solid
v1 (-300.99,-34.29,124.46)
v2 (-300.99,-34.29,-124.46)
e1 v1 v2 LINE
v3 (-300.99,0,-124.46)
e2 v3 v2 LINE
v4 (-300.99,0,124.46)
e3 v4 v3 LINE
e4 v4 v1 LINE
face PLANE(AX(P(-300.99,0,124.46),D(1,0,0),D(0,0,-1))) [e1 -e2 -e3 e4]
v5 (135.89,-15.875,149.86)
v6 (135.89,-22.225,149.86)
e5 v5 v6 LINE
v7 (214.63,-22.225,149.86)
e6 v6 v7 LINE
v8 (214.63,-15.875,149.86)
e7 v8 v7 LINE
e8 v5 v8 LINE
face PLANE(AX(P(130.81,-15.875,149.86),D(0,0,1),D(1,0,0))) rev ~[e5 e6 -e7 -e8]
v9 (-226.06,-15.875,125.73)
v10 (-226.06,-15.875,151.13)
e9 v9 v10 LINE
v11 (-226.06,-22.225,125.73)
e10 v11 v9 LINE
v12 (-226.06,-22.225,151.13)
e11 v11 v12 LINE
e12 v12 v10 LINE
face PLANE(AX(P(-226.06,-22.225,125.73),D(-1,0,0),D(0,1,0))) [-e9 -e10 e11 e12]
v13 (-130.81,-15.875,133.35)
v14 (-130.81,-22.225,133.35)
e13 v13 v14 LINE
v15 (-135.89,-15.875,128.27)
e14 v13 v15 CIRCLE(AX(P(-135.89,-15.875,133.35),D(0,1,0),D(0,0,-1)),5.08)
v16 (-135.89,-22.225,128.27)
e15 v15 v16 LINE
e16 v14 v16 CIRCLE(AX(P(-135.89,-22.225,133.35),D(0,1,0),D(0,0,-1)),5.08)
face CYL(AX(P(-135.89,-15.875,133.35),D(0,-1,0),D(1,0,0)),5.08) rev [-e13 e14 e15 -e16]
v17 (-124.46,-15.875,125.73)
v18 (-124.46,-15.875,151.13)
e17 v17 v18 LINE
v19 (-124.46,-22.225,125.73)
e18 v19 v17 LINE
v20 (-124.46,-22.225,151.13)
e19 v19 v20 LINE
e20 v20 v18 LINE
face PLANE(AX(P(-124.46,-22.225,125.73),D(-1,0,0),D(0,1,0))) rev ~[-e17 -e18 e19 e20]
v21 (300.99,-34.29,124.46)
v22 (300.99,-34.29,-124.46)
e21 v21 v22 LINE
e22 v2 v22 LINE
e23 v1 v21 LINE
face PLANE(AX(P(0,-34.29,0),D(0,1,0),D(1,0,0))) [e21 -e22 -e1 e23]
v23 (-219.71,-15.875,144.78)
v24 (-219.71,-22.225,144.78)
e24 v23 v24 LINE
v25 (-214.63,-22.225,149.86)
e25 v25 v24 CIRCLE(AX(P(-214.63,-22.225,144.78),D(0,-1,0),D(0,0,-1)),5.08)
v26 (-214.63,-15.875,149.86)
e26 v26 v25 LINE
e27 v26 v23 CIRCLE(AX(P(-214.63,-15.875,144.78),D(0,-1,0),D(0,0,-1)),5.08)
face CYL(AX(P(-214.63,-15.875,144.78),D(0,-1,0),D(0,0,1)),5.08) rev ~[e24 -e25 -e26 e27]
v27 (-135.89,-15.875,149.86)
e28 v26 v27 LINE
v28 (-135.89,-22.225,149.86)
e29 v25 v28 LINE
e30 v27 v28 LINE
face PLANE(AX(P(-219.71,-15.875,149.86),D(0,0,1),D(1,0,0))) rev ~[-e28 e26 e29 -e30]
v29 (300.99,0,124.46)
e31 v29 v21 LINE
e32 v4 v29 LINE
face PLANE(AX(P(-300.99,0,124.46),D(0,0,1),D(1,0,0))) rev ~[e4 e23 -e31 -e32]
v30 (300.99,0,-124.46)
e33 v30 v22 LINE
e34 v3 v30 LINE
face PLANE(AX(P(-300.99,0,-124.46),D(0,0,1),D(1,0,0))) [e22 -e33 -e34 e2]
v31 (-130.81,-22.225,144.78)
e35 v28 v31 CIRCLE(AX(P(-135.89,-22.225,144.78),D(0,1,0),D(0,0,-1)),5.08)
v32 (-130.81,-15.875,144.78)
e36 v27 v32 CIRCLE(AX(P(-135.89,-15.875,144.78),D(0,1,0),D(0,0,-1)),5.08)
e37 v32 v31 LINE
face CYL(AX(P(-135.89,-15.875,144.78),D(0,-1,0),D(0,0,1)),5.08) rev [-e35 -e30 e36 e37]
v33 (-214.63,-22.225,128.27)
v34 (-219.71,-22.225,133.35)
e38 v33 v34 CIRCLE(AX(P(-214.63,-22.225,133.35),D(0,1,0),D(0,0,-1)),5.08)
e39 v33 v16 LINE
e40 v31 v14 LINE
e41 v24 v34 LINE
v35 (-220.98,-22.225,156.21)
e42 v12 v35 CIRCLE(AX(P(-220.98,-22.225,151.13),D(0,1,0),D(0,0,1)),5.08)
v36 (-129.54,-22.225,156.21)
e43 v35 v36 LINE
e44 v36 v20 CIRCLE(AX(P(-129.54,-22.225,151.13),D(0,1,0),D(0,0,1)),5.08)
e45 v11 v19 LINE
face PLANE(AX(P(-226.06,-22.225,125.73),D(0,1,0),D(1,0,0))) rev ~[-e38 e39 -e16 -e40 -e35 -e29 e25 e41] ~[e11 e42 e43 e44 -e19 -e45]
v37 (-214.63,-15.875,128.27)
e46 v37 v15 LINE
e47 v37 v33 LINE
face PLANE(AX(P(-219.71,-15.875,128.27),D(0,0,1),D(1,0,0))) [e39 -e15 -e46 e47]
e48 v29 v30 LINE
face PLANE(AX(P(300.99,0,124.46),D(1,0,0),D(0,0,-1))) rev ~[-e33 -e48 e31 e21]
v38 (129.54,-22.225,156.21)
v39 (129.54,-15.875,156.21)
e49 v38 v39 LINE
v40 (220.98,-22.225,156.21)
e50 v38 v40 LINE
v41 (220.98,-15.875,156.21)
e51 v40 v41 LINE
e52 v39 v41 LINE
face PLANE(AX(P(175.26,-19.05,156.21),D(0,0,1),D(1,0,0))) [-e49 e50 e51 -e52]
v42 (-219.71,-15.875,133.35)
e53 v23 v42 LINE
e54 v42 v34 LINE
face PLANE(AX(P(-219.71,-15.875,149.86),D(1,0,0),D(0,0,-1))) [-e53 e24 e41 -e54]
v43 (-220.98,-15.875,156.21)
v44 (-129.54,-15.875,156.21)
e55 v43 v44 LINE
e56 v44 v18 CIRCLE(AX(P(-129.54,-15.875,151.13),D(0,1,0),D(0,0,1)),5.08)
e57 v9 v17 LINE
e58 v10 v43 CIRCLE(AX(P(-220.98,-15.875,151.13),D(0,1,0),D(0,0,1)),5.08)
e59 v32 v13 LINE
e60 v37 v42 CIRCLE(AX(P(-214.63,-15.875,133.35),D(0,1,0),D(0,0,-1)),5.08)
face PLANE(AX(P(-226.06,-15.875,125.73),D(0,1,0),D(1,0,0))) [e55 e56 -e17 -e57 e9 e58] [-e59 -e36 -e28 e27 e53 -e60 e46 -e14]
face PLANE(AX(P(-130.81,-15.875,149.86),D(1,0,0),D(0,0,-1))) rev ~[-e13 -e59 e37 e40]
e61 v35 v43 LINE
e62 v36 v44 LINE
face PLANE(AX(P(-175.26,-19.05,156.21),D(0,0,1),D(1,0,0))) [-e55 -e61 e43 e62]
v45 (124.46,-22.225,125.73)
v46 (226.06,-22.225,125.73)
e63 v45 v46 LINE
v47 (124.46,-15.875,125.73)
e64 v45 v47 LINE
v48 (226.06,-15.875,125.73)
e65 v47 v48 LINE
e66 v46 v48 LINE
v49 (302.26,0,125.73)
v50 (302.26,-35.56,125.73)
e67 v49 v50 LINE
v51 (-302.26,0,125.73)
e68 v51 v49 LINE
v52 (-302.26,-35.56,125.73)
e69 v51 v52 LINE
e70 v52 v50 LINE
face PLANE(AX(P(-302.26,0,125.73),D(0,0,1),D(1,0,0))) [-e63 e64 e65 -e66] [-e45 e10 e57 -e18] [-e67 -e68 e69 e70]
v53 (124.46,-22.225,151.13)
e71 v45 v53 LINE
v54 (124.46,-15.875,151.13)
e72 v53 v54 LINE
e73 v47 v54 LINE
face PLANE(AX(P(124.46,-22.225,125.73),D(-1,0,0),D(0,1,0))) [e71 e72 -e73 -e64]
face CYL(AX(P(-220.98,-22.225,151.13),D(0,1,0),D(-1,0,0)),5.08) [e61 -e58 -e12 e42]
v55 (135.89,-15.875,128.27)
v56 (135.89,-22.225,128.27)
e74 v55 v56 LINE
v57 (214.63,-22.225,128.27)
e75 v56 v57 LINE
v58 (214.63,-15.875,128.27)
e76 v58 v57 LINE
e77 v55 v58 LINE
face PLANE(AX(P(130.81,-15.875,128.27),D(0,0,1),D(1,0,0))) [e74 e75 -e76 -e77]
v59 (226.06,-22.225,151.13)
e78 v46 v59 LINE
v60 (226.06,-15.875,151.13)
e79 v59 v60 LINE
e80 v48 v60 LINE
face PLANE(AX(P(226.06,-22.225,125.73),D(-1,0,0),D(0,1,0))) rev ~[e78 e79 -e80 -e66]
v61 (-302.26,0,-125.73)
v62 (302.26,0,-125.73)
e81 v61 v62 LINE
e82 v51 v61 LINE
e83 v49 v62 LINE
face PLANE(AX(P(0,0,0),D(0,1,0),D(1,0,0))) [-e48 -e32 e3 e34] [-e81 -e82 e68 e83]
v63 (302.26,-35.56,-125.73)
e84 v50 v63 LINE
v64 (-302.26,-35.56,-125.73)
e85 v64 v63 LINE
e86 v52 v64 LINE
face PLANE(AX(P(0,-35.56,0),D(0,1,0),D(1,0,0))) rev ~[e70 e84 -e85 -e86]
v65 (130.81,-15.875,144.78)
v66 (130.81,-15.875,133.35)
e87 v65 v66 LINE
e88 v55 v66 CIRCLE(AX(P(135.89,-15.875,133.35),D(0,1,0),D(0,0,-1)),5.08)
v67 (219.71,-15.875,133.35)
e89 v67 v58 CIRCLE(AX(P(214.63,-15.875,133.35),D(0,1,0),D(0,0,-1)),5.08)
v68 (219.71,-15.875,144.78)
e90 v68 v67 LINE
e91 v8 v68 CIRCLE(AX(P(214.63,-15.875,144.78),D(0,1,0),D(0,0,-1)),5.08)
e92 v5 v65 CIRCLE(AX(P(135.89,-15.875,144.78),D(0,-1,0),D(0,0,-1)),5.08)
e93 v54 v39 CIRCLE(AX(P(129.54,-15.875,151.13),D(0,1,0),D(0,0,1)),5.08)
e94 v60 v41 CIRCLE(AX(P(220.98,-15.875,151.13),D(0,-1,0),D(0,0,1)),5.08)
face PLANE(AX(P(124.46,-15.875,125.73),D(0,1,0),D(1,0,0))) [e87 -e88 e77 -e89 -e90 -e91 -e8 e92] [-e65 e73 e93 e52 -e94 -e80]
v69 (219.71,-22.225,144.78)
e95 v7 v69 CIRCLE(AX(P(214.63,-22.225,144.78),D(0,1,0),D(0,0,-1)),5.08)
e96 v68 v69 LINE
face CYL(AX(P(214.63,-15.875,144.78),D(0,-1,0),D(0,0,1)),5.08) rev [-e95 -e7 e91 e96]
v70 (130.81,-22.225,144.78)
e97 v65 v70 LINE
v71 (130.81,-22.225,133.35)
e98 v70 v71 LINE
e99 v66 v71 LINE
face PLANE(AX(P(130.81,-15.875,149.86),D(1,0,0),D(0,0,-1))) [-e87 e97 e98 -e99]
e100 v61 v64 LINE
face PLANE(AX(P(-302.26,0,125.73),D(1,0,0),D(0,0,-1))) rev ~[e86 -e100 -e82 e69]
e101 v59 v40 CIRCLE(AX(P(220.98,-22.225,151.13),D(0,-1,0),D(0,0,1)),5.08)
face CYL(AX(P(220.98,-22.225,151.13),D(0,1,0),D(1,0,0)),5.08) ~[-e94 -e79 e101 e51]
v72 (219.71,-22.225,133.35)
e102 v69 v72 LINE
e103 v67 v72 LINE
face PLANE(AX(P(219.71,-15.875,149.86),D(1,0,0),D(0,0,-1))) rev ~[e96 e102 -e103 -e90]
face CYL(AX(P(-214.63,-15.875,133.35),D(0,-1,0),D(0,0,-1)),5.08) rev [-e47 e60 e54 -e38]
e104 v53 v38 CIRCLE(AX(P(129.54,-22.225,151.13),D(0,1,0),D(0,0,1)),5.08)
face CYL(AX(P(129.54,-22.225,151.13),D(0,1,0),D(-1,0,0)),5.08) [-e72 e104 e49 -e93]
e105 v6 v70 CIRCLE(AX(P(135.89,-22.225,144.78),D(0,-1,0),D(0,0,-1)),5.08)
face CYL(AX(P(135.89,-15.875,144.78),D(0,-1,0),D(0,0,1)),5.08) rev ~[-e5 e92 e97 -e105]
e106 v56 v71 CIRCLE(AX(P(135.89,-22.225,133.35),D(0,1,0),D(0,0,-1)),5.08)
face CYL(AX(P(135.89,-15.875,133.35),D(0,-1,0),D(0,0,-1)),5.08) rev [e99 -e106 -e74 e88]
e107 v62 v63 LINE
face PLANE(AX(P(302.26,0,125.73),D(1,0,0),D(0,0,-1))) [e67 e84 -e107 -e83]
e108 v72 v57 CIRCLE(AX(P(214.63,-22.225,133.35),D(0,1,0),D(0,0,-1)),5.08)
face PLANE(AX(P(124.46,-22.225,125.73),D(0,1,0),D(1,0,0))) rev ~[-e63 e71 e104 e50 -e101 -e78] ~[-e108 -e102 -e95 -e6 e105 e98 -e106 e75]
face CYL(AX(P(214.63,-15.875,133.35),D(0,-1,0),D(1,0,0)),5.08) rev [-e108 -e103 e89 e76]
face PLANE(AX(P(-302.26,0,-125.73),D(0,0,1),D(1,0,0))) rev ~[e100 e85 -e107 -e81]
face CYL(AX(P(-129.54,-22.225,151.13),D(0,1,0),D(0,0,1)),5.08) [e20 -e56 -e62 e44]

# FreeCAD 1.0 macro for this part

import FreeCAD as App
import Part
import Sketcher
from FreeCAD import Vector
Q = App.Units.Quantity


def edges_at(feature, points):
    """Names of the edges that pass closest to the given points."""
    edges = feature.Shape.Edges
    near = lambda p: min(range(len(edges)), key=lambda i: edges[i].distToShape(Part.Vertex(*p))[0])
    return sorted({f"Edge{near(p) + 1}" for p in points})

doc = App.newDocument("Part")
body = doc.addObject("PartDesign::Body", "Body")

# Sketch on XZ plane
sketch1 = body.newObject("Sketcher::SketchObject", "Sketch")
sketch1.AttachmentSupport = (doc.getObject("XZ_Plane"), [""])
sketch1.MapMode = "FlatFace"
sketch1.addGeometry(Part.LineSegment(Vector(-302, -126, 0), Vector(-302, 126, 0)), False)
sketch1.addGeometry(Part.LineSegment(Vector(-302, 126, 0), Vector(302, 126, 0)), False)
sketch1.addGeometry(Part.LineSegment(Vector(302, 126, 0), Vector(302, -126, 0)), False)
sketch1.addGeometry(Part.LineSegment(Vector(302, -126, 0), Vector(-302, -126, 0)), False)
sketch1.addConstraint(Sketcher.Constraint("Coincident", 0, 2, 1, 1))
sketch1.addConstraint(Sketcher.Constraint("Coincident", 1, 2, 2, 1))
sketch1.addConstraint(Sketcher.Constraint("Coincident", 2, 2, 3, 1))
sketch1.addConstraint(Sketcher.Constraint("Coincident", 3, 2, 0, 1))
sketch1.addConstraint(Sketcher.Constraint("Vertical", 0))
sketch1.addConstraint(Sketcher.Constraint("Horizontal", 1))
sketch1.addConstraint(Sketcher.Constraint("Vertical", 2))
sketch1.addConstraint(Sketcher.Constraint("Horizontal", 3))
sketch1.addConstraint(Sketcher.Constraint("Symmetric", 0, 2, 2, 2, -1, 1))
sketch1.addConstraint(Sketcher.Constraint("DistanceX", 1, 1, 1, 2, Q("23.8 in")))
sketch1.addConstraint(Sketcher.Constraint("DistanceY", 0, 1, 0, 2, Q("9.9 in")))
pad1 = body.newObject("PartDesign::Pad", "Pad")
pad1.Profile = sketch1
pad1.Length = Q("1.4 in")

# Sketch on XZ plane
sketch2 = body.newObject("Sketcher::SketchObject", "Sketch001")
sketch2.AttachmentSupport = (doc.getObject("XZ_Plane"), [""])
sketch2.MapMode = "FlatFace"
sketch2.addGeometry(Part.LineSegment(Vector(-301, -124, 0), Vector(-301, 124, 0)), False)
sketch2.addGeometry(Part.LineSegment(Vector(-301, 124, 0), Vector(301, 124, 0)), False)
sketch2.addGeometry(Part.LineSegment(Vector(301, 124, 0), Vector(301, -124, 0)), False)
sketch2.addGeometry(Part.LineSegment(Vector(301, -124, 0), Vector(-301, -124, 0)), False)
sketch2.addConstraint(Sketcher.Constraint("Coincident", 0, 2, 1, 1))
sketch2.addConstraint(Sketcher.Constraint("Coincident", 1, 2, 2, 1))
sketch2.addConstraint(Sketcher.Constraint("Coincident", 2, 2, 3, 1))
sketch2.addConstraint(Sketcher.Constraint("Coincident", 3, 2, 0, 1))
sketch2.addConstraint(Sketcher.Constraint("Vertical", 0))
sketch2.addConstraint(Sketcher.Constraint("Horizontal", 1))
sketch2.addConstraint(Sketcher.Constraint("Vertical", 2))
sketch2.addConstraint(Sketcher.Constraint("Horizontal", 3))
sketch2.addConstraint(Sketcher.Constraint("Symmetric", 0, 2, 2, 2, -1, 1))
sketch2.addConstraint(Sketcher.Constraint("DistanceX", 1, 1, 1, 2, Q("23.7 in")))
sketch2.addConstraint(Sketcher.Constraint("DistanceY", 0, 1, 0, 2, Q("9.8 in")))
pocket1 = body.newObject("PartDesign::Pocket", "Pocket")
pocket1.Profile = sketch2
pocket1.Length = Q("1.35 in")
pocket1.Reversed = True

# Sketch on XY plane
sketch3 = body.newObject("Sketcher::SketchObject", "Sketch002")
sketch3.AttachmentSupport = (doc.getObject("XY_Plane"), [""])
sketch3.MapMode = "FlatFace"
sketch3.AttachmentOffset = App.Placement(Vector(0, 0, 4.95 * 25.4), App.Rotation())
sketch3.addGeometry(Part.LineSegment(Vector(-226, -16, 0), Vector(-226, -22, 0)), False)
sketch3.addGeometry(Part.LineSegment(Vector(-226, -22, 0), Vector(-124, -22, 0)), False)
sketch3.addGeometry(Part.LineSegment(Vector(-124, -22, 0), Vector(-124, -16, 0)), False)
sketch3.addGeometry(Part.LineSegment(Vector(-124, -16, 0), Vector(-226, -16, 0)), False)
sketch3.addGeometry(Part.LineSegment(Vector(124, -16, 0), Vector(124, -22, 0)), False)
sketch3.addGeometry(Part.LineSegment(Vector(124, -22, 0), Vector(226, -22, 0)), False)
sketch3.addGeometry(Part.LineSegment(Vector(226, -22, 0), Vector(226, -16, 0)), False)
sketch3.addGeometry(Part.LineSegment(Vector(226, -16, 0), Vector(124, -16, 0)), False)
sketch3.addConstraint(Sketcher.Constraint("Coincident", 0, 2, 1, 1))
sketch3.addConstraint(Sketcher.Constraint("Coincident", 1, 2, 2, 1))
sketch3.addConstraint(Sketcher.Constraint("Coincident", 2, 2, 3, 1))
sketch3.addConstraint(Sketcher.Constraint("Coincident", 3, 2, 0, 1))
sketch3.addConstraint(Sketcher.Constraint("Coincident", 4, 2, 5, 1))
sketch3.addConstraint(Sketcher.Constraint("Coincident", 5, 2, 6, 1))
sketch3.addConstraint(Sketcher.Constraint("Coincident", 6, 2, 7, 1))
sketch3.addConstraint(Sketcher.Constraint("Coincident", 7, 2, 4, 1))
sketch3.addConstraint(Sketcher.Constraint("Vertical", 0))
sketch3.addConstraint(Sketcher.Constraint("Horizontal", 1))
sketch3.addConstraint(Sketcher.Constraint("Vertical", 2))
sketch3.addConstraint(Sketcher.Constraint("Horizontal", 3))
sketch3.addConstraint(Sketcher.Constraint("Vertical", 4))
sketch3.addConstraint(Sketcher.Constraint("Horizontal", 5))
sketch3.addConstraint(Sketcher.Constraint("Vertical", 6))
sketch3.addConstraint(Sketcher.Constraint("Horizontal", 7))
sketch3.addConstraint(Sketcher.Constraint("Symmetric", 1, 2, 4, 2, -2))
sketch3.addConstraint(Sketcher.Constraint("Symmetric", 3, 2, 6, 2, -2))
sketch3.addConstraint(Sketcher.Constraint("DistanceX", 1, 1, 1, 2, Q("4 in")))
sketch3.addConstraint(Sketcher.Constraint("DistanceY", 0, 2, 0, 1, Q("0.25 in")))
sketch3.addConstraint(Sketcher.Constraint("DistanceX", 0, 2, -1, 1, Q("8.9 in")))
sketch3.addConstraint(Sketcher.Constraint("DistanceY", 0, 2, -1, 1, Q("0.875 in")))
pad2 = body.newObject("PartDesign::Pad", "Pad001")
pad2.Profile = sketch3
pad2.Length = Q("1.2 in")

# Sketch on XZ plane
sketch4 = body.newObject("Sketcher::SketchObject", "Sketch003")
sketch4.AttachmentSupport = (doc.getObject("XZ_Plane"), [""])
sketch4.MapMode = "FlatFace"
sketch4.AttachmentOffset = App.Placement(Vector(0, 0, 0.625 * 25.4), App.Rotation())
sketch4.addGeometry(Part.LineSegment(Vector(-220, 128, 0), Vector(-220, 150, 0)), False)
sketch4.addGeometry(Part.LineSegment(Vector(-220, 150, 0), Vector(-131, 150, 0)), False)
sketch4.addGeometry(Part.LineSegment(Vector(-131, 150, 0), Vector(-131, 128, 0)), False)
sketch4.addGeometry(Part.LineSegment(Vector(-131, 128, 0), Vector(-220, 128, 0)), False)
sketch4.addGeometry(Part.LineSegment(Vector(131, 128, 0), Vector(131, 150, 0)), False)
sketch4.addGeometry(Part.LineSegment(Vector(131, 150, 0), Vector(220, 150, 0)), False)
sketch4.addGeometry(Part.LineSegment(Vector(220, 150, 0), Vector(220, 128, 0)), False)
sketch4.addGeometry(Part.LineSegment(Vector(220, 128, 0), Vector(131, 128, 0)), False)
sketch4.addConstraint(Sketcher.Constraint("Coincident", 0, 2, 1, 1))
sketch4.addConstraint(Sketcher.Constraint("Coincident", 1, 2, 2, 1))
sketch4.addConstraint(Sketcher.Constraint("Coincident", 2, 2, 3, 1))
sketch4.addConstraint(Sketcher.Constraint("Coincident", 3, 2, 0, 1))
sketch4.addConstraint(Sketcher.Constraint("Coincident", 4, 2, 5, 1))
sketch4.addConstraint(Sketcher.Constraint("Coincident", 5, 2, 6, 1))
sketch4.addConstraint(Sketcher.Constraint("Coincident", 6, 2, 7, 1))
sketch4.addConstraint(Sketcher.Constraint("Coincident", 7, 2, 4, 1))
sketch4.addConstraint(Sketcher.Constraint("Vertical", 0))
sketch4.addConstraint(Sketcher.Constraint("Horizontal", 1))
sketch4.addConstraint(Sketcher.Constraint("Vertical", 2))
sketch4.addConstraint(Sketcher.Constraint("Horizontal", 3))
sketch4.addConstraint(Sketcher.Constraint("Vertical", 4))
sketch4.addConstraint(Sketcher.Constraint("Horizontal", 5))
sketch4.addConstraint(Sketcher.Constraint("Vertical", 6))
sketch4.addConstraint(Sketcher.Constraint("Horizontal", 7))
sketch4.addConstraint(Sketcher.Constraint("Symmetric", 1, 2, 4, 2, -2))
sketch4.addConstraint(Sketcher.Constraint("Symmetric", 3, 2, 6, 2, -2))
sketch4.addConstraint(Sketcher.Constraint("DistanceX", 1, 1, 1, 2, Q("3.5 in")))
sketch4.addConstraint(Sketcher.Constraint("DistanceY", 0, 1, 0, 2, Q("0.85 in")))
sketch4.addConstraint(Sketcher.Constraint("DistanceY", -1, 1, 0, 2, Q("5.9 in")))
sketch4.addConstraint(Sketcher.Constraint("DistanceX", 1, 2, 4, 2, Q("10.3 in")))
pocket2 = body.newObject("PartDesign::Pocket", "Pocket001")
pocket2.Profile = sketch4
pocket2.Type = "ThroughAll"
pocket2.Reversed = True
doc.recompute()

fillet = body.newObject("PartDesign::Fillet", "Fillet")
fillet.Base = (pocket2, edges_at(pocket2, [
    (-219.71, -19.05, 149.86),
    (-219.71, -19.05, 128.27),
    (-130.81, -19.05, 128.27),
    (-130.81, -19.05, 149.86),
    (219.71, -19.05, 128.27),
    (219.71, -19.05, 149.86),
    (130.81, -19.05, 149.86),
    (130.81, -19.05, 128.27),
]))
fillet.Radius = Q("0.2 in")
doc.recompute()

fillet2 = body.newObject("PartDesign::Fillet", "Fillet001")
fillet2.Base = (fillet, edges_at(fillet, [
    (-226.06, -19.05, 156.21),
    (-124.46, -19.05, 156.21),
    (226.06, -19.05, 156.21),
    (124.46, -19.05, 156.21),
]))
fillet2.Radius = Q("0.2 in")

doc.recompute()
